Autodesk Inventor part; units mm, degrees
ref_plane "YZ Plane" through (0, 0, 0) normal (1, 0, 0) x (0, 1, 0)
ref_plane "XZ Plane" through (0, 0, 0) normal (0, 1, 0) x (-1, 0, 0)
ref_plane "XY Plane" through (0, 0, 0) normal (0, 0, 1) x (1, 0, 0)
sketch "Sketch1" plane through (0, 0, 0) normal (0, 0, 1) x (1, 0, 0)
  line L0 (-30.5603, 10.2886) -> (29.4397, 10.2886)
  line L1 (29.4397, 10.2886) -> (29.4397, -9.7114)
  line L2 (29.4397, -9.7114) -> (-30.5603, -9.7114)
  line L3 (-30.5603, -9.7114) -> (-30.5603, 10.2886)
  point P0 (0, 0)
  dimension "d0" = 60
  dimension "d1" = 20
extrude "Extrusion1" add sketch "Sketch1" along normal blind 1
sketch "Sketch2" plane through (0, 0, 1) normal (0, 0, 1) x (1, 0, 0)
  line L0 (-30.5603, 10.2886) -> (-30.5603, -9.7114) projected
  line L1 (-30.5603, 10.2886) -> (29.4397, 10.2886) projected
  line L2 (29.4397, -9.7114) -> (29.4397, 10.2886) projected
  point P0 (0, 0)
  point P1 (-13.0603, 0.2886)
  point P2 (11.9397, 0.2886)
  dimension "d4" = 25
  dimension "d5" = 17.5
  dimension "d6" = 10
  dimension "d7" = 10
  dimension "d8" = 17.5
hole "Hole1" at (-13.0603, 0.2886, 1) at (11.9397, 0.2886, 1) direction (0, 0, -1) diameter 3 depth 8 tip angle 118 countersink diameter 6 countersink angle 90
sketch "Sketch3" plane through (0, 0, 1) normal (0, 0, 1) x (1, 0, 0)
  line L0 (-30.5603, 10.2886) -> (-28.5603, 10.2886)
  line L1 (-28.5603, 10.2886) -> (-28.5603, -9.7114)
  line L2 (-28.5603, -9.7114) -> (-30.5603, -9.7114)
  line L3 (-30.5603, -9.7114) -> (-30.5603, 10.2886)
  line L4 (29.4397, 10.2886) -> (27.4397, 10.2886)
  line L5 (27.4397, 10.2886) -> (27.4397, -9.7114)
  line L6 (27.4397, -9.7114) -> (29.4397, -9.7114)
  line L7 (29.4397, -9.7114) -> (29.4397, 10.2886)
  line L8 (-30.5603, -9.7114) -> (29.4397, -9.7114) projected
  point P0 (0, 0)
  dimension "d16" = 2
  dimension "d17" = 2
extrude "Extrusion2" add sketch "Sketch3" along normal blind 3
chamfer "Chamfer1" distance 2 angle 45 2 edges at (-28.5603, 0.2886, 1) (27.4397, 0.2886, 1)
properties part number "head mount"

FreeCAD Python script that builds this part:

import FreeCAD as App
import Part
import Sketcher

V = App.Vector


def edges_at(feature, points):
    """Names of the edges that pass closest to the given points."""
    edges = feature.Shape.Edges
    near = lambda p: min(range(len(edges)), key=lambda i: edges[i].distToShape(Part.Vertex(*p))[0])
    return sorted({f"Edge{near(p) + 1}" for p in points})


def add_polygon(sketch, points):
    """Adds a closed chain of lines whose ends are joined by coincident constraints."""
    first, n = sketch.GeometryCount, len(points)
    for a, b in zip(points, points[1:] + points[:1]):
        sketch.addGeometry(Part.LineSegment(App.Vector(*a, 0), App.Vector(*b, 0)), False)
    for i in range(n):
        sketch.addConstraint(Sketcher.Constraint("Coincident", first + i, 2, first + (i + 1) % n, 1))

doc = App.newDocument("Part")
params = doc.addObject("Spreadsheet::Sheet", "Params")
for row, (alias, value) in enumerate([
    ("sketch1_width", "60 mm"),
    ("sketch1_height", "20 mm"),
    ("pad1_length", "1 mm"),
    ("sketch2_diameter", "3 mm"),
    ("hole_diameter", "3 mm"),
    ("hole_depth", "8 mm"),
    ("hole_csink_diameter", "6 mm"),
    ("sketch3_width", "2 mm"),
    ("sketch3_height", "20 mm"),
    ("pad2_length", "3 mm"),
    ("chamfer_size", "2 mm"),
], start=1):
    params.set(f"A{row}", alias)
    params.set(f"B{row}", "=" + value)
    params.setAlias(f"B{row}", alias)

body = doc.addObject("PartDesign::Body", "Body")

# Sketch on XY plane
sketch1 = body.newObject("Sketcher::SketchObject", "Sketch")
sketch1.AttachmentSupport = (doc.getObject("XY_Plane"), [""])
sketch1.MapMode = "FlatFace"
add_polygon(sketch1, [(29, 10), (-31, 10), (-31, -10), (29, -10)])  # lines 0-3
sketch1.addConstraint(Sketcher.Constraint("Horizontal", 0))
sketch1.addConstraint(Sketcher.Constraint("Vertical", 1))
sketch1.addConstraint(Sketcher.Constraint("Horizontal", 2))
sketch1.addConstraint(Sketcher.Constraint("Vertical", 3))
sketch1.addConstraint(Sketcher.Constraint("DistanceX", 0, 2, 0, 1, 60.0))
sketch1.addConstraint(Sketcher.Constraint("DistanceY", 1, 2, 1, 1, 20.0))
sketch1.addConstraint(Sketcher.Constraint("DistanceX", 0, 2, -1, 1, 30.5603))
sketch1.addConstraint(Sketcher.Constraint("DistanceY", -1, 1, 0, 2, 10.2886))
sketch1.setExpression("Constraints[8]", "Params.sketch1_width")
sketch1.setExpression("Constraints[9]", "Params.sketch1_height")
pad1 = body.newObject("PartDesign::Pad", "Pad")
pad1.Profile = sketch1
pad1.setExpression("Length", "Params.pad1_length")

# Sketch on XY plane
sketch2 = body.newObject("Sketcher::SketchObject", "Sketch001")
sketch2.AttachmentSupport = (doc.getObject("XY_Plane"), [""])
sketch2.MapMode = "FlatFace"
sketch2.AttachmentOffset = App.Placement(V(0, 0, 1), App.Rotation())
sketch2.addGeometry(Part.Circle(V(-13.1, 0.3, 0), V(0, 0, 1), 1.5), False)
sketch2.addGeometry(Part.Circle(V(11.9, 0.3, 0), V(0, 0, 1), 1.5), False)
sketch2.addConstraint(Sketcher.Constraint("Equal", 0, 1))
sketch2.addConstraint(Sketcher.Constraint("Horizontal", 0, 3, 1, 3))
sketch2.addConstraint(Sketcher.Constraint("Diameter", 0, 3.0))
sketch2.addConstraint(Sketcher.Constraint("DistanceX", 0, 3, 1, 3, 25.0))
sketch2.addConstraint(Sketcher.Constraint("DistanceX", 0, 3, -1, 1, 13.0603))
sketch2.addConstraint(Sketcher.Constraint("DistanceY", -1, 1, 0, 3, 0.2886))
sketch2.setExpression("Constraints[2]", "Params.sketch2_diameter")
doc.recompute()
hole = body.newObject("PartDesign::Hole", "Hole")
hole.Profile = sketch2
hole.ThreadType = "None"
hole.setExpression("Diameter", "Params.hole_diameter")
hole.DepthType = "Dimension"
hole.setExpression("Depth", "Params.hole_depth")
hole.DrillPoint = "Angled"
hole.DrillPointAngle = 118
hole.HoleCutType = "Countersink"
hole.setExpression("HoleCutDiameter", "Params.hole_csink_diameter")
hole.HoleCutCountersinkAngle = 90

# Sketch on XY plane
sketch3 = body.newObject("Sketcher::SketchObject", "Sketch002")
sketch3.AttachmentSupport = (doc.getObject("XY_Plane"), [""])
sketch3.MapMode = "FlatFace"
sketch3.AttachmentOffset = App.Placement(V(0, 0, 1), App.Rotation())
add_polygon(sketch3, [(27.4, 10.3), (27.4, -9.7), (29.4, -9.7), (29.4, 10.3)])  # lines 0-3
add_polygon(sketch3, [(-28.6, 10.3), (-30.6, 10.3), (-30.6, -9.7), (-28.6, -9.7)])  # lines 4-7
sketch3.addConstraint(Sketcher.Constraint("Vertical", 0))
sketch3.addConstraint(Sketcher.Constraint("Horizontal", 1))
sketch3.addConstraint(Sketcher.Constraint("Vertical", 2))
sketch3.addConstraint(Sketcher.Constraint("Horizontal", 3))
sketch3.addConstraint(Sketcher.Constraint("Horizontal", 4))
sketch3.addConstraint(Sketcher.Constraint("Vertical", 5))
sketch3.addConstraint(Sketcher.Constraint("Horizontal", 6))
sketch3.addConstraint(Sketcher.Constraint("Vertical", 7))
sketch3.addConstraint(Sketcher.Constraint("Horizontal", 3, 2, 4, 2))
sketch3.addConstraint(Sketcher.Constraint("Horizontal", 1, 2, 5, 2))
sketch3.addConstraint(Sketcher.Constraint("Equal", 3, 4))
sketch3.addConstraint(Sketcher.Constraint("DistanceX", 1, 1, 1, 2, 2.0))
sketch3.addConstraint(Sketcher.Constraint("DistanceY", 0, 2, 0, 1, 20.0))
sketch3.addConstraint(Sketcher.Constraint("DistanceX", 4, 2, 3, 2, 58.0))
sketch3.addConstraint(Sketcher.Constraint("DistanceX", -1, 1, 0, 2, 27.4397))
sketch3.addConstraint(Sketcher.Constraint("DistanceY", 0, 2, -1, 1, 9.7114))
sketch3.setExpression("Constraints[19]", "Params.sketch3_width")
sketch3.setExpression("Constraints[20]", "Params.sketch3_height")
pad2 = body.newObject("PartDesign::Pad", "Pad001")
pad2.Profile = sketch3
pad2.setExpression("Length", "Params.pad2_length")
doc.recompute()

chamfer = body.newObject("PartDesign::Chamfer", "Chamfer")
chamfer.Base = (pad2, edges_at(pad2, [(-28.56, 0.289, 1), (27.44, 0.289, 1)]))
chamfer.setExpression("Size", "Params.chamfer_size")

doc.recompute()
